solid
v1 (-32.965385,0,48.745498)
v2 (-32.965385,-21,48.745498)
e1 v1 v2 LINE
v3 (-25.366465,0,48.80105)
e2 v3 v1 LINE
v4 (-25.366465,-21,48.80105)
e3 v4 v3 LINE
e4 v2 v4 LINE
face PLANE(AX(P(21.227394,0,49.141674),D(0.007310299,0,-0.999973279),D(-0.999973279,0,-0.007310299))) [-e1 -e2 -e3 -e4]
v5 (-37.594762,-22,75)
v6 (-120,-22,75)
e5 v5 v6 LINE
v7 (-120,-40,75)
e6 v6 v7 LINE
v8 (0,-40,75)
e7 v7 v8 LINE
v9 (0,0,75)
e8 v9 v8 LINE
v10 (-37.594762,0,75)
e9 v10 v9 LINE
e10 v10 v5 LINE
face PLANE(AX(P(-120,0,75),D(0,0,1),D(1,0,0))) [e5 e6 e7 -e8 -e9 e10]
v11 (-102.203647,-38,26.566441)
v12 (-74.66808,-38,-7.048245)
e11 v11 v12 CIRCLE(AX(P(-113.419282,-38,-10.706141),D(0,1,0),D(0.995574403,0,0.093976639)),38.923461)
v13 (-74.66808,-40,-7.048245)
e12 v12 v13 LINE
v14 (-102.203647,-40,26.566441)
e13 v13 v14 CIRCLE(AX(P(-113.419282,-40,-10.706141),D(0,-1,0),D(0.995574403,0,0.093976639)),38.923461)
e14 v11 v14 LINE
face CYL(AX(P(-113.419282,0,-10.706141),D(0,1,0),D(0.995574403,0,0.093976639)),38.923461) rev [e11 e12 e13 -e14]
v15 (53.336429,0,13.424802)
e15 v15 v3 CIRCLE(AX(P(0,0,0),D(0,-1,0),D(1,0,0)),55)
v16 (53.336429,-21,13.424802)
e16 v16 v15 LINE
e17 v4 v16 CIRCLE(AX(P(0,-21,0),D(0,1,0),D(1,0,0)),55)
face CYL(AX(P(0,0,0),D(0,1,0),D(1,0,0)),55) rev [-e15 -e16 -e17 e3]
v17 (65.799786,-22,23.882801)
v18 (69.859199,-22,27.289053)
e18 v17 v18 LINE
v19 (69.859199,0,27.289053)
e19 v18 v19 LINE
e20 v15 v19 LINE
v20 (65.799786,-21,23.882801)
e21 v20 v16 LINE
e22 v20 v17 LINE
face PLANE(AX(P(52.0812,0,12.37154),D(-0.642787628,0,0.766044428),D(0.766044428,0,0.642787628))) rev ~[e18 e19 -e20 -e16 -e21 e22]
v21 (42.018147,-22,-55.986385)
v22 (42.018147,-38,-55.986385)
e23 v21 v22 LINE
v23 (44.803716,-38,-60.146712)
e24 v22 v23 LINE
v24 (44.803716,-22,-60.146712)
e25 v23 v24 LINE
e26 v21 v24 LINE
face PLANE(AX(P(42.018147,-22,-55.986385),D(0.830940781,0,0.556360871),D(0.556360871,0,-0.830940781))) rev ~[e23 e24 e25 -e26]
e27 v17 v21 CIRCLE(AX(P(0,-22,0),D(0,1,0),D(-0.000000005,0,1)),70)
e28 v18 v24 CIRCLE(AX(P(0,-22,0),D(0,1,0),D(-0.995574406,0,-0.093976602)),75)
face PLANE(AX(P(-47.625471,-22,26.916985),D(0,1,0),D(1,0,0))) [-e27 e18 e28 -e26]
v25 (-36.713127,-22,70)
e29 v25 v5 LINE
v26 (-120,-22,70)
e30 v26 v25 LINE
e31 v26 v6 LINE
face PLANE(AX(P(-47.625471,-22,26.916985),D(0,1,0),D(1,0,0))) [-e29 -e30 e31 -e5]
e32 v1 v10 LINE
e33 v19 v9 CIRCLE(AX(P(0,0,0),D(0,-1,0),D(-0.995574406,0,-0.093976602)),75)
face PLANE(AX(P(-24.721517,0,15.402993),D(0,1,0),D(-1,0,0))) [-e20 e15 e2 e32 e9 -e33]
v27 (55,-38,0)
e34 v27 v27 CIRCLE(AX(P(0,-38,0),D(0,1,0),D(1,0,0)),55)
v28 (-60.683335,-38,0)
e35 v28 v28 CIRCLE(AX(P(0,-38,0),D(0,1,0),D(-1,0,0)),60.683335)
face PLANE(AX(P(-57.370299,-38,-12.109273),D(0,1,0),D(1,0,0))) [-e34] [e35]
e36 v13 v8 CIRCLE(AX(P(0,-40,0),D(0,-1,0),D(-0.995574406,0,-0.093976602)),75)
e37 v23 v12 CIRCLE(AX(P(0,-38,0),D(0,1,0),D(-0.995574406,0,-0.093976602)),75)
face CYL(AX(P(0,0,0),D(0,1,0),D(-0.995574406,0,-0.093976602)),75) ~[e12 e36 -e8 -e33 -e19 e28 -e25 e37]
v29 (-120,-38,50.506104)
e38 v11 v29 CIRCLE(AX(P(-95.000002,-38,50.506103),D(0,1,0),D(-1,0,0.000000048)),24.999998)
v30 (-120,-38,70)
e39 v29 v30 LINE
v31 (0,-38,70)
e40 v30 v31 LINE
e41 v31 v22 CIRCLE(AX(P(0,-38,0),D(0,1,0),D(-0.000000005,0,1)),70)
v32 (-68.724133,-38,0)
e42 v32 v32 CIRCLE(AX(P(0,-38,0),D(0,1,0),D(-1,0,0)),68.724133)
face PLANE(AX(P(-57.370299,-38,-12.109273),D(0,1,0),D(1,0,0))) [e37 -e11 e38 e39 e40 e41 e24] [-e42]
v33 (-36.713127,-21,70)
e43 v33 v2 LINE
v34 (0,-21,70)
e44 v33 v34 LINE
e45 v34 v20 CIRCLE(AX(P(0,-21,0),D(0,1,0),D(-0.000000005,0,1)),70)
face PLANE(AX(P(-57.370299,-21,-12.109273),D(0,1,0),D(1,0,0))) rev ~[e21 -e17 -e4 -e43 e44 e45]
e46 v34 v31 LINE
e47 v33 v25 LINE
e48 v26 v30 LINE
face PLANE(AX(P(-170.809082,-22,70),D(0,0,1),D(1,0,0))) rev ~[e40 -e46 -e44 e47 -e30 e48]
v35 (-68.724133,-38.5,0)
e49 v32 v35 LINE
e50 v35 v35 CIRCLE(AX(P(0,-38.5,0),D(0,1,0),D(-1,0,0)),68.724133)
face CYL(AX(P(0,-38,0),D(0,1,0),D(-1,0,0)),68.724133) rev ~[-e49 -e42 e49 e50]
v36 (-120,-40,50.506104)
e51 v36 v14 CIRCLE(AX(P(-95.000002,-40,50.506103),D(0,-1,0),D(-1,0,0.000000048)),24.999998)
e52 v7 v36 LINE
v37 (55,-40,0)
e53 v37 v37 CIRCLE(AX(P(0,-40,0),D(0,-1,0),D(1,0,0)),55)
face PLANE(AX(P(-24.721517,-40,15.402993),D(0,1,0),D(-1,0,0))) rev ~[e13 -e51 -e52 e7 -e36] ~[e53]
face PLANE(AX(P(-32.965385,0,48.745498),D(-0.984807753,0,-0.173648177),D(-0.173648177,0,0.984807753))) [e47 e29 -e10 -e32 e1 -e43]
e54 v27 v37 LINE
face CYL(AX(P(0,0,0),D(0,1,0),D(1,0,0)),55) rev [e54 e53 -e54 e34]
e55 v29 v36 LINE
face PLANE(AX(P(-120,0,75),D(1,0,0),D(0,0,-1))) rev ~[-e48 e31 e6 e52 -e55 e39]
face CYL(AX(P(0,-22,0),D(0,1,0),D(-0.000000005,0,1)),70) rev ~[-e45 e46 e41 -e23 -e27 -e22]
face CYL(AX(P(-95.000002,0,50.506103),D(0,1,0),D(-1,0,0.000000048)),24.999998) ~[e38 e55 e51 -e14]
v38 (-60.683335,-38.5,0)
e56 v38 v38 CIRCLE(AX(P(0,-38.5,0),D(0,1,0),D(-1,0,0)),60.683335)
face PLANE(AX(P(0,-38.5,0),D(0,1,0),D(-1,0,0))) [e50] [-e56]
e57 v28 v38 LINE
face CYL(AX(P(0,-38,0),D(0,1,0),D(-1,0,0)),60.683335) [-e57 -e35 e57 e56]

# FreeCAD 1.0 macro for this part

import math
import FreeCAD as App
import Part
import Sketcher
Q = App.Units.Quantity

doc = App.newDocument("Part")
body = doc.addObject("PartDesign::Body", "Body")

# Sketch on XZ plane
sketch1 = body.newObject("Sketcher::SketchObject", "Sketch")
sketch1.AttachmentSupport = (doc.getObject("XZ_Plane"), [""])
sketch1.MapMode = "FlatFace"
sketch1.addGeometry([
    Part.LineSegment(App.Vector(0, 75, 0), App.Vector(-120, 75, 0)),  # 0
    Part.LineSegment(App.Vector(-120, 75, 0), App.Vector(-120, 51, 0)),  # 1
    Part.ArcOfCircle(Part.Circle(App.Vector(-95, 51, 0), App.Vector(0, 0, 1), 25), math.radians(180), math.radians(253)),  # 2
    Part.ArcOfCircle(Part.Circle(App.Vector(-113, -11, 0), App.Vector(0, 0, 1), 39), math.radians(5), math.radians(73)),  # 3
    Part.ArcOfCircle(Part.Circle(App.Vector(0, 0, 0), App.Vector(0, 0, 1), 75), math.radians(-175), math.radians(90)),  # 4
    Part.Circle(App.Vector(0, 0, 0), App.Vector(0, 0, 1), 55),  # 5
], False)
sketch1.addConstraint([
    Sketcher.Constraint("Coincident", 0, 2, 1, 1),
    Sketcher.Constraint("Tangent", 1, 2, 2, 1),
    Sketcher.Constraint("Tangent", 2, 2, 3, 2),
    Sketcher.Constraint("Tangent", 3, 1, 4, 1),
    Sketcher.Constraint("Tangent", 4, 2, 0, 1),
    Sketcher.Constraint("Horizontal", 0),
    Sketcher.Constraint("Vertical", 1),
    Sketcher.Constraint("Coincident", 4, 3, -1, 1),
    Sketcher.Constraint("Coincident", 5, 3, -1, 1),
    Sketcher.Constraint("Diameter", 5, Q("110 mm")),
    Sketcher.Constraint("Radius", 2, Q("24.999998 mm")),
    Sketcher.Constraint("Radius", 4, Q("75 mm")),
    Sketcher.Constraint("DistanceX", 0, 2, 0, 1, Q("120 mm")),
    Sketcher.Constraint("Radius", 3, Q("38.923461 mm")),
    Sketcher.Constraint("DistanceX", 3, 3, 3, 1, Q("38.751202 mm")),
])
pad1 = body.newObject("PartDesign::Pad", "Pad")
pad1.Profile = sketch1
pad1.Length = 40

# Sketch on XZ plane
sketch2 = body.newObject("Sketcher::SketchObject", "Sketch001")
sketch2.AttachmentSupport = (doc.getObject("XZ_Plane"), [""])
sketch2.MapMode = "FlatFace"
sketch2.addGeometry([
    Part.LineSegment(App.Vector(52, 12, 0), App.Vector(86, 40, 0)),  # 0
    Part.ArcOfCircle(Part.Circle(App.Vector(0, 0, 0), App.Vector(0, 0, 1), 95), math.radians(180), math.radians(385)),  # 1
    Part.LineSegment(App.Vector(-95, 0, 0), App.Vector(-212, 109, 0)),  # 2
    Part.LineSegment(App.Vector(-212, 109, 0), App.Vector(-44, 109, 0)),  # 3
    Part.LineSegment(App.Vector(-44, 109, 0), App.Vector(-33, 49, 0)),  # 4
    Part.LineSegment(App.Vector(-33, 49, 0), App.Vector(21, 49, 0)),  # 5
    Part.LineSegment(App.Vector(21, 49, 0), App.Vector(52, 12, 0)),  # 6
], False)
sketch2.addConstraint([
    Sketcher.Constraint("Coincident", 0, 2, 1, 2),
    Sketcher.Constraint("Coincident", 1, 1, 2, 1),
    Sketcher.Constraint("Coincident", 2, 2, 3, 1),
    Sketcher.Constraint("Coincident", 3, 2, 4, 1),
    Sketcher.Constraint("Coincident", 4, 2, 5, 1),
    Sketcher.Constraint("Coincident", 5, 2, 6, 1),
    Sketcher.Constraint("Coincident", 6, 2, 0, 1),
    Sketcher.Constraint("Horizontal", 3),
    Sketcher.Constraint("Coincident", 1, 3, -1, 1),
    Sketcher.Constraint("PointOnObject", 1, 1, -1),
    Sketcher.Constraint("Perpendicular", 0, 6),
    Sketcher.Constraint("Angle", 0, Q("40.000001 deg")),
    Sketcher.Constraint("Angle", 4, Q("-80 deg")),
    Sketcher.Constraint("Distance", 6, Q("48.000001 mm")),
    Sketcher.Constraint("DistanceX", 3, 1, 3, 2, Q("168.1987 mm")),
    Sketcher.Constraint("Radius", 1, Q("94.636188 mm")),
    Sketcher.Constraint("Distance", 2, Q("159.8816 mm")),
    Sketcher.Constraint("DistanceX", -1, 1, 6, 2, Q("52.0812 mm")),
    Sketcher.Constraint("DistanceY", 1, 3, 4, 2, Q("48.745498 mm")),
    Sketcher.Constraint("Distance", 4, Q("61.01335 mm")),
    Sketcher.Constraint("DistanceY", -1, 1, 6, 2, Q("12.37154 mm")),
])
pocket1 = body.newObject("PartDesign::Pocket", "Pocket")
pocket1.Profile = sketch2
pocket1.Length = 22
pocket1.Reversed = True

# Sketch on XZ plane
sketch3 = body.newObject("Sketcher::SketchObject", "Sketch002")
sketch3.AttachmentSupport = (doc.getObject("XZ_Plane"), [""])
sketch3.MapMode = "FlatFace"
sketch3.AttachmentOffset = App.Placement(App.Vector(0, 0, 22), App.Rotation())
sketch3.addGeometry([
    Part.ArcOfCircle(Part.Circle(App.Vector(0, 0, 0), App.Vector(0, 0, 1), 70), math.radians(-53), math.radians(90)),  # 0
    Part.LineSegment(App.Vector(42, -56, 0), App.Vector(62, -86, 0)),  # 1
    Part.LineSegment(App.Vector(62, -86, 0), App.Vector(-171, -86, 0)),  # 2
    Part.LineSegment(App.Vector(-171, -86, 0), App.Vector(-171, 70, 0)),  # 3
    Part.LineSegment(App.Vector(-171, 70, 0), App.Vector(0, 70, 0)),  # 4
], False)
sketch3.addConstraint([
    Sketcher.Constraint("Coincident", 0, 1, 1, 1),
    Sketcher.Constraint("Coincident", 1, 2, 2, 1),
    Sketcher.Constraint("Coincident", 2, 2, 3, 1),
    Sketcher.Constraint("Coincident", 3, 2, 4, 1),
    Sketcher.Constraint("Tangent", 4, 2, 0, 2),
    Sketcher.Constraint("Horizontal", 2),
    Sketcher.Constraint("Vertical", 3),
    Sketcher.Constraint("Horizontal", 4),
    Sketcher.Constraint("Coincident", 0, 3, -1, 1),
    Sketcher.Constraint("Radius", 0, Q("70 mm")),
    Sketcher.Constraint("DistanceX", 4, 1, 4, 2, Q("170.809082 mm")),
    Sketcher.Constraint("DistanceY", 3, 1, 3, 2, Q("156.16832 mm")),
    Sketcher.Constraint("DistanceX", 2, 2, 2, 1, Q("233.035706 mm")),
    Sketcher.Constraint("DistanceX", 2, 2, 0, 1, Q("212.827229 mm")),
])
pocket2 = body.newObject("PartDesign::Pocket", "Pocket001")
pocket2.Profile = sketch3
pocket2.Type = "TwoLengths"
pocket2.Length = 16
pocket2.Length2 = 1
pocket2.Reversed = True

# Sketch on XZ plane
sketch4 = body.newObject("Sketcher::SketchObject", "Sketch003")
sketch4.AttachmentSupport = (doc.getObject("XZ_Plane"), [""])
sketch4.MapMode = "FlatFace"
sketch4.AttachmentOffset = App.Placement(App.Vector(0, 0, 38), App.Rotation())
sketch4.addGeometry([
    Part.Circle(App.Vector(0, 0, 0), App.Vector(0, 0, 1), 69),
    Part.Circle(App.Vector(0, 0, 0), App.Vector(0, 0, 1), 61),
], False)
sketch4.addConstraint([
    Sketcher.Constraint("Coincident", 0, 3, -1, 1),
    Sketcher.Constraint("Coincident", 1, 3, -1, 1),
    Sketcher.Constraint("Diameter", 1, Q("121.36667 mm")),
    Sketcher.Constraint("Diameter", 0, Q("137.448266 mm")),
])
pocket3 = body.newObject("PartDesign::Pocket", "Pocket002")
pocket3.Profile = sketch4
pocket3.Length = 0.5
pocket3.Reversed = True

doc.recompute()
